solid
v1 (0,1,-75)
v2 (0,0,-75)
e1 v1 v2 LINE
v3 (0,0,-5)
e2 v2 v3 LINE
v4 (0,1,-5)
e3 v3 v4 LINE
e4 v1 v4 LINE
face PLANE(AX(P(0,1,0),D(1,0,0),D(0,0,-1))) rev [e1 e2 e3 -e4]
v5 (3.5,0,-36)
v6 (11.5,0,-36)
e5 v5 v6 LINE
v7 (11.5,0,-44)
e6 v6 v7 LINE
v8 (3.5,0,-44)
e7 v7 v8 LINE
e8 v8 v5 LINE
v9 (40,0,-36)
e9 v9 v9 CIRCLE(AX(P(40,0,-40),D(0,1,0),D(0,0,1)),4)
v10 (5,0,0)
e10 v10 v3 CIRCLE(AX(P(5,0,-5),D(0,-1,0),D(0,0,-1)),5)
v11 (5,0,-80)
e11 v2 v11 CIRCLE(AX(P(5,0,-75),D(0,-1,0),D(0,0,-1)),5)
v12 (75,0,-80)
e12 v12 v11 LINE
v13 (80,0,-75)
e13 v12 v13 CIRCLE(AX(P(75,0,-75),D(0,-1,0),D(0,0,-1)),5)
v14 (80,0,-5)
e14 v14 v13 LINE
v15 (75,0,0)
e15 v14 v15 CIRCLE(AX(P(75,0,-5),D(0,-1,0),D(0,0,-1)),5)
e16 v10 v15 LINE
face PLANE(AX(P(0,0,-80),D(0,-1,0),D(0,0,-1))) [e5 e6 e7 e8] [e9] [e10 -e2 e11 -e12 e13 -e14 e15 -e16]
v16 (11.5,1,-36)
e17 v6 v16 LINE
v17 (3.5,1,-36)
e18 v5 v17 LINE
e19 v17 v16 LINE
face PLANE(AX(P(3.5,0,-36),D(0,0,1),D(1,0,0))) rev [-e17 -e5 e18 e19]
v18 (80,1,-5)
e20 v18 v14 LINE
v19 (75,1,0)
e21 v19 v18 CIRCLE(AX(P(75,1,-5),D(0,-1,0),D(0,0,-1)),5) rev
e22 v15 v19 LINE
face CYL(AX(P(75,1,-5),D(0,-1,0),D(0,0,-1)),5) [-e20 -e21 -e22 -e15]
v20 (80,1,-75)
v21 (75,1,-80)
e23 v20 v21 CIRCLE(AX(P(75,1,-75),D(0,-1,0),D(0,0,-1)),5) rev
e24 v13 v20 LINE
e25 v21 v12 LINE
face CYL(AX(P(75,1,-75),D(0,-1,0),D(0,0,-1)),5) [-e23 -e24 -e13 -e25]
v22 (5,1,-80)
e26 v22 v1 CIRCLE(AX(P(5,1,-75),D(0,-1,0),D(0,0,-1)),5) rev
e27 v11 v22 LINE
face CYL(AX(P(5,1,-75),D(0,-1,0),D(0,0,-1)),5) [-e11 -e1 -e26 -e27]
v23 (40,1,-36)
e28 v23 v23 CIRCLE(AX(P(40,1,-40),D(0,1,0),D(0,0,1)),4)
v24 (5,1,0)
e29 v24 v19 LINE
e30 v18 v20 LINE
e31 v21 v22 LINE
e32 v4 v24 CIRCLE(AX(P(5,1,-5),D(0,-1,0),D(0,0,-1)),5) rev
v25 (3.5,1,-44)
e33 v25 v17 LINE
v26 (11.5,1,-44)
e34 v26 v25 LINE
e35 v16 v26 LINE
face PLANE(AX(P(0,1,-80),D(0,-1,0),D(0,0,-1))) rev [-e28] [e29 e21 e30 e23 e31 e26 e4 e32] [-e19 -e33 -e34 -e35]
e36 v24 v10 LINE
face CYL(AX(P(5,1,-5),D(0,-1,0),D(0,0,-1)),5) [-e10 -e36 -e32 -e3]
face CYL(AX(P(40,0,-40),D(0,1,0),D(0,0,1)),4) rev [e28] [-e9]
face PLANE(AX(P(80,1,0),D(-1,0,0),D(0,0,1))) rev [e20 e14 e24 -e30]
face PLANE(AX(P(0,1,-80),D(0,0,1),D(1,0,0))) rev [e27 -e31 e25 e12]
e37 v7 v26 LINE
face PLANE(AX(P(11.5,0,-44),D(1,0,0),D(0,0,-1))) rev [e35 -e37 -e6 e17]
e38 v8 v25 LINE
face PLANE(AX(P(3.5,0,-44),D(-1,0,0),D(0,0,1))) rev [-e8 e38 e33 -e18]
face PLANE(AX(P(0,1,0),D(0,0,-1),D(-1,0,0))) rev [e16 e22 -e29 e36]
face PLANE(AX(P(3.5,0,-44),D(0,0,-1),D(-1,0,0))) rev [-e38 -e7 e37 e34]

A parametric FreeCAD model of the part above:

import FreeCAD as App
import Part
import Sketcher

V = App.Vector
Q = App.Units.Quantity


def edges_at(feature, points):
    """Names of the edges that pass closest to the given points."""
    edges = feature.Shape.Edges
    near = lambda p: min(range(len(edges)), key=lambda i: edges[i].distToShape(Part.Vertex(*p))[0])
    return sorted({f"Edge{near(p) + 1}" for p in points})


def add_polygon(sketch, points):
    """Adds a closed chain of lines whose ends are joined by coincident constraints."""
    first, n = sketch.GeometryCount, len(points)
    for a, b in zip(points, points[1:] + points[:1]):
        sketch.addGeometry(Part.LineSegment(App.Vector(*a, 0), App.Vector(*b, 0)), False)
    for i in range(n):
        sketch.addConstraint(Sketcher.Constraint("Coincident", first + i, 2, first + (i + 1) % n, 1))

doc = App.newDocument("Part")
body = doc.addObject("PartDesign::Body", "Body")

# Sketch on XZ plane
sketch1 = body.newObject("Sketcher::SketchObject", "Sketch")
sketch1.AttachmentSupport = (doc.getObject("XZ_Plane"), [""])
sketch1.MapMode = "FlatFace"
add_polygon(sketch1, [(0, -80), (0, 0), (80, 0), (80, -80)])  # lines 0-3
sketch1.addConstraint(Sketcher.Constraint("Vertical", 0))
sketch1.addConstraint(Sketcher.Constraint("Horizontal", 1))
sketch1.addConstraint(Sketcher.Constraint("Vertical", 2))
sketch1.addConstraint(Sketcher.Constraint("Horizontal", 3))
sketch1.addConstraint(Sketcher.Constraint("Coincident", 0, 2, -1, 1))
sketch1.addConstraint(Sketcher.Constraint("Equal", 3, 0))
sketch1.addConstraint(Sketcher.Constraint("DistanceX", 1, 1, 1, 2, Q("80 mm")))
pad1 = body.newObject("PartDesign::Pad", "Pad")
pad1.Profile = sketch1
pad1.Length = 1
pad1.Reversed = True
doc.recompute()

fillet = body.newObject("PartDesign::Fillet", "Fillet")
fillet.Base = (pad1, edges_at(pad1, [
    (0, 0.5, -80),
    (80, 0.5, -80),
    (80, 0.5, 0),
    (0, 0.5, 0),
]))
fillet.Radius = 5

# Sketch on XZ plane
sketch2 = body.newObject("Sketcher::SketchObject", "Sketch001")
sketch2.AttachmentSupport = (doc.getObject("XZ_Plane"), [""])
sketch2.MapMode = "FlatFace"
sketch2.AttachmentOffset = App.Placement(V(0, 0, -1), App.Rotation())
sketch2.addGeometry(Part.Circle(V(40, -40, 0), V(0, 0, 1), 4), False)
sketch2.addConstraint(Sketcher.Constraint("Diameter", 0, Q("8 mm")))
sketch2.addConstraint(Sketcher.Constraint("DistanceX", -1, 1, 0, 3, Q("40 mm")))
sketch2.addConstraint(Sketcher.Constraint("DistanceY", 0, 3, -1, 1, Q("40 mm")))
pocket1 = body.newObject("PartDesign::Pocket", "Pocket")
pocket1.Profile = sketch2
pocket1.Type = "ThroughAll"
pocket1.Reversed = True

# Sketch on XZ plane
sketch3 = body.newObject("Sketcher::SketchObject", "Sketch002")
sketch3.AttachmentSupport = (doc.getObject("XZ_Plane"), [""])
sketch3.MapMode = "FlatFace"
sketch3.AttachmentOffset = App.Placement(V(0, 0, -1), App.Rotation())
add_polygon(sketch3, [(4, -44), (4, -36), (12, -36), (12, -44)])  # lines 0-3
sketch3.addConstraint(Sketcher.Constraint("Vertical", 0))
sketch3.addConstraint(Sketcher.Constraint("Horizontal", 1))
sketch3.addConstraint(Sketcher.Constraint("Vertical", 2))
sketch3.addConstraint(Sketcher.Constraint("Horizontal", 3))
sketch3.addConstraint(Sketcher.Constraint("Equal", 3, 0))
sketch3.addConstraint(Sketcher.Constraint("DistanceX", 1, 1, 1, 2, Q("8 mm")))
sketch3.addConstraint(Sketcher.Constraint("DistanceY", 0, 2, -1, 1, Q("36 mm")))
sketch3.addConstraint(Sketcher.Constraint("DistanceX", -1, 1, 0, 2, Q("3.5 mm")))
pocket2 = body.newObject("PartDesign::Pocket", "Pocket001")
pocket2.Profile = sketch3
pocket2.Type = "ThroughAll"
pocket2.Reversed = True

doc.recompute()
